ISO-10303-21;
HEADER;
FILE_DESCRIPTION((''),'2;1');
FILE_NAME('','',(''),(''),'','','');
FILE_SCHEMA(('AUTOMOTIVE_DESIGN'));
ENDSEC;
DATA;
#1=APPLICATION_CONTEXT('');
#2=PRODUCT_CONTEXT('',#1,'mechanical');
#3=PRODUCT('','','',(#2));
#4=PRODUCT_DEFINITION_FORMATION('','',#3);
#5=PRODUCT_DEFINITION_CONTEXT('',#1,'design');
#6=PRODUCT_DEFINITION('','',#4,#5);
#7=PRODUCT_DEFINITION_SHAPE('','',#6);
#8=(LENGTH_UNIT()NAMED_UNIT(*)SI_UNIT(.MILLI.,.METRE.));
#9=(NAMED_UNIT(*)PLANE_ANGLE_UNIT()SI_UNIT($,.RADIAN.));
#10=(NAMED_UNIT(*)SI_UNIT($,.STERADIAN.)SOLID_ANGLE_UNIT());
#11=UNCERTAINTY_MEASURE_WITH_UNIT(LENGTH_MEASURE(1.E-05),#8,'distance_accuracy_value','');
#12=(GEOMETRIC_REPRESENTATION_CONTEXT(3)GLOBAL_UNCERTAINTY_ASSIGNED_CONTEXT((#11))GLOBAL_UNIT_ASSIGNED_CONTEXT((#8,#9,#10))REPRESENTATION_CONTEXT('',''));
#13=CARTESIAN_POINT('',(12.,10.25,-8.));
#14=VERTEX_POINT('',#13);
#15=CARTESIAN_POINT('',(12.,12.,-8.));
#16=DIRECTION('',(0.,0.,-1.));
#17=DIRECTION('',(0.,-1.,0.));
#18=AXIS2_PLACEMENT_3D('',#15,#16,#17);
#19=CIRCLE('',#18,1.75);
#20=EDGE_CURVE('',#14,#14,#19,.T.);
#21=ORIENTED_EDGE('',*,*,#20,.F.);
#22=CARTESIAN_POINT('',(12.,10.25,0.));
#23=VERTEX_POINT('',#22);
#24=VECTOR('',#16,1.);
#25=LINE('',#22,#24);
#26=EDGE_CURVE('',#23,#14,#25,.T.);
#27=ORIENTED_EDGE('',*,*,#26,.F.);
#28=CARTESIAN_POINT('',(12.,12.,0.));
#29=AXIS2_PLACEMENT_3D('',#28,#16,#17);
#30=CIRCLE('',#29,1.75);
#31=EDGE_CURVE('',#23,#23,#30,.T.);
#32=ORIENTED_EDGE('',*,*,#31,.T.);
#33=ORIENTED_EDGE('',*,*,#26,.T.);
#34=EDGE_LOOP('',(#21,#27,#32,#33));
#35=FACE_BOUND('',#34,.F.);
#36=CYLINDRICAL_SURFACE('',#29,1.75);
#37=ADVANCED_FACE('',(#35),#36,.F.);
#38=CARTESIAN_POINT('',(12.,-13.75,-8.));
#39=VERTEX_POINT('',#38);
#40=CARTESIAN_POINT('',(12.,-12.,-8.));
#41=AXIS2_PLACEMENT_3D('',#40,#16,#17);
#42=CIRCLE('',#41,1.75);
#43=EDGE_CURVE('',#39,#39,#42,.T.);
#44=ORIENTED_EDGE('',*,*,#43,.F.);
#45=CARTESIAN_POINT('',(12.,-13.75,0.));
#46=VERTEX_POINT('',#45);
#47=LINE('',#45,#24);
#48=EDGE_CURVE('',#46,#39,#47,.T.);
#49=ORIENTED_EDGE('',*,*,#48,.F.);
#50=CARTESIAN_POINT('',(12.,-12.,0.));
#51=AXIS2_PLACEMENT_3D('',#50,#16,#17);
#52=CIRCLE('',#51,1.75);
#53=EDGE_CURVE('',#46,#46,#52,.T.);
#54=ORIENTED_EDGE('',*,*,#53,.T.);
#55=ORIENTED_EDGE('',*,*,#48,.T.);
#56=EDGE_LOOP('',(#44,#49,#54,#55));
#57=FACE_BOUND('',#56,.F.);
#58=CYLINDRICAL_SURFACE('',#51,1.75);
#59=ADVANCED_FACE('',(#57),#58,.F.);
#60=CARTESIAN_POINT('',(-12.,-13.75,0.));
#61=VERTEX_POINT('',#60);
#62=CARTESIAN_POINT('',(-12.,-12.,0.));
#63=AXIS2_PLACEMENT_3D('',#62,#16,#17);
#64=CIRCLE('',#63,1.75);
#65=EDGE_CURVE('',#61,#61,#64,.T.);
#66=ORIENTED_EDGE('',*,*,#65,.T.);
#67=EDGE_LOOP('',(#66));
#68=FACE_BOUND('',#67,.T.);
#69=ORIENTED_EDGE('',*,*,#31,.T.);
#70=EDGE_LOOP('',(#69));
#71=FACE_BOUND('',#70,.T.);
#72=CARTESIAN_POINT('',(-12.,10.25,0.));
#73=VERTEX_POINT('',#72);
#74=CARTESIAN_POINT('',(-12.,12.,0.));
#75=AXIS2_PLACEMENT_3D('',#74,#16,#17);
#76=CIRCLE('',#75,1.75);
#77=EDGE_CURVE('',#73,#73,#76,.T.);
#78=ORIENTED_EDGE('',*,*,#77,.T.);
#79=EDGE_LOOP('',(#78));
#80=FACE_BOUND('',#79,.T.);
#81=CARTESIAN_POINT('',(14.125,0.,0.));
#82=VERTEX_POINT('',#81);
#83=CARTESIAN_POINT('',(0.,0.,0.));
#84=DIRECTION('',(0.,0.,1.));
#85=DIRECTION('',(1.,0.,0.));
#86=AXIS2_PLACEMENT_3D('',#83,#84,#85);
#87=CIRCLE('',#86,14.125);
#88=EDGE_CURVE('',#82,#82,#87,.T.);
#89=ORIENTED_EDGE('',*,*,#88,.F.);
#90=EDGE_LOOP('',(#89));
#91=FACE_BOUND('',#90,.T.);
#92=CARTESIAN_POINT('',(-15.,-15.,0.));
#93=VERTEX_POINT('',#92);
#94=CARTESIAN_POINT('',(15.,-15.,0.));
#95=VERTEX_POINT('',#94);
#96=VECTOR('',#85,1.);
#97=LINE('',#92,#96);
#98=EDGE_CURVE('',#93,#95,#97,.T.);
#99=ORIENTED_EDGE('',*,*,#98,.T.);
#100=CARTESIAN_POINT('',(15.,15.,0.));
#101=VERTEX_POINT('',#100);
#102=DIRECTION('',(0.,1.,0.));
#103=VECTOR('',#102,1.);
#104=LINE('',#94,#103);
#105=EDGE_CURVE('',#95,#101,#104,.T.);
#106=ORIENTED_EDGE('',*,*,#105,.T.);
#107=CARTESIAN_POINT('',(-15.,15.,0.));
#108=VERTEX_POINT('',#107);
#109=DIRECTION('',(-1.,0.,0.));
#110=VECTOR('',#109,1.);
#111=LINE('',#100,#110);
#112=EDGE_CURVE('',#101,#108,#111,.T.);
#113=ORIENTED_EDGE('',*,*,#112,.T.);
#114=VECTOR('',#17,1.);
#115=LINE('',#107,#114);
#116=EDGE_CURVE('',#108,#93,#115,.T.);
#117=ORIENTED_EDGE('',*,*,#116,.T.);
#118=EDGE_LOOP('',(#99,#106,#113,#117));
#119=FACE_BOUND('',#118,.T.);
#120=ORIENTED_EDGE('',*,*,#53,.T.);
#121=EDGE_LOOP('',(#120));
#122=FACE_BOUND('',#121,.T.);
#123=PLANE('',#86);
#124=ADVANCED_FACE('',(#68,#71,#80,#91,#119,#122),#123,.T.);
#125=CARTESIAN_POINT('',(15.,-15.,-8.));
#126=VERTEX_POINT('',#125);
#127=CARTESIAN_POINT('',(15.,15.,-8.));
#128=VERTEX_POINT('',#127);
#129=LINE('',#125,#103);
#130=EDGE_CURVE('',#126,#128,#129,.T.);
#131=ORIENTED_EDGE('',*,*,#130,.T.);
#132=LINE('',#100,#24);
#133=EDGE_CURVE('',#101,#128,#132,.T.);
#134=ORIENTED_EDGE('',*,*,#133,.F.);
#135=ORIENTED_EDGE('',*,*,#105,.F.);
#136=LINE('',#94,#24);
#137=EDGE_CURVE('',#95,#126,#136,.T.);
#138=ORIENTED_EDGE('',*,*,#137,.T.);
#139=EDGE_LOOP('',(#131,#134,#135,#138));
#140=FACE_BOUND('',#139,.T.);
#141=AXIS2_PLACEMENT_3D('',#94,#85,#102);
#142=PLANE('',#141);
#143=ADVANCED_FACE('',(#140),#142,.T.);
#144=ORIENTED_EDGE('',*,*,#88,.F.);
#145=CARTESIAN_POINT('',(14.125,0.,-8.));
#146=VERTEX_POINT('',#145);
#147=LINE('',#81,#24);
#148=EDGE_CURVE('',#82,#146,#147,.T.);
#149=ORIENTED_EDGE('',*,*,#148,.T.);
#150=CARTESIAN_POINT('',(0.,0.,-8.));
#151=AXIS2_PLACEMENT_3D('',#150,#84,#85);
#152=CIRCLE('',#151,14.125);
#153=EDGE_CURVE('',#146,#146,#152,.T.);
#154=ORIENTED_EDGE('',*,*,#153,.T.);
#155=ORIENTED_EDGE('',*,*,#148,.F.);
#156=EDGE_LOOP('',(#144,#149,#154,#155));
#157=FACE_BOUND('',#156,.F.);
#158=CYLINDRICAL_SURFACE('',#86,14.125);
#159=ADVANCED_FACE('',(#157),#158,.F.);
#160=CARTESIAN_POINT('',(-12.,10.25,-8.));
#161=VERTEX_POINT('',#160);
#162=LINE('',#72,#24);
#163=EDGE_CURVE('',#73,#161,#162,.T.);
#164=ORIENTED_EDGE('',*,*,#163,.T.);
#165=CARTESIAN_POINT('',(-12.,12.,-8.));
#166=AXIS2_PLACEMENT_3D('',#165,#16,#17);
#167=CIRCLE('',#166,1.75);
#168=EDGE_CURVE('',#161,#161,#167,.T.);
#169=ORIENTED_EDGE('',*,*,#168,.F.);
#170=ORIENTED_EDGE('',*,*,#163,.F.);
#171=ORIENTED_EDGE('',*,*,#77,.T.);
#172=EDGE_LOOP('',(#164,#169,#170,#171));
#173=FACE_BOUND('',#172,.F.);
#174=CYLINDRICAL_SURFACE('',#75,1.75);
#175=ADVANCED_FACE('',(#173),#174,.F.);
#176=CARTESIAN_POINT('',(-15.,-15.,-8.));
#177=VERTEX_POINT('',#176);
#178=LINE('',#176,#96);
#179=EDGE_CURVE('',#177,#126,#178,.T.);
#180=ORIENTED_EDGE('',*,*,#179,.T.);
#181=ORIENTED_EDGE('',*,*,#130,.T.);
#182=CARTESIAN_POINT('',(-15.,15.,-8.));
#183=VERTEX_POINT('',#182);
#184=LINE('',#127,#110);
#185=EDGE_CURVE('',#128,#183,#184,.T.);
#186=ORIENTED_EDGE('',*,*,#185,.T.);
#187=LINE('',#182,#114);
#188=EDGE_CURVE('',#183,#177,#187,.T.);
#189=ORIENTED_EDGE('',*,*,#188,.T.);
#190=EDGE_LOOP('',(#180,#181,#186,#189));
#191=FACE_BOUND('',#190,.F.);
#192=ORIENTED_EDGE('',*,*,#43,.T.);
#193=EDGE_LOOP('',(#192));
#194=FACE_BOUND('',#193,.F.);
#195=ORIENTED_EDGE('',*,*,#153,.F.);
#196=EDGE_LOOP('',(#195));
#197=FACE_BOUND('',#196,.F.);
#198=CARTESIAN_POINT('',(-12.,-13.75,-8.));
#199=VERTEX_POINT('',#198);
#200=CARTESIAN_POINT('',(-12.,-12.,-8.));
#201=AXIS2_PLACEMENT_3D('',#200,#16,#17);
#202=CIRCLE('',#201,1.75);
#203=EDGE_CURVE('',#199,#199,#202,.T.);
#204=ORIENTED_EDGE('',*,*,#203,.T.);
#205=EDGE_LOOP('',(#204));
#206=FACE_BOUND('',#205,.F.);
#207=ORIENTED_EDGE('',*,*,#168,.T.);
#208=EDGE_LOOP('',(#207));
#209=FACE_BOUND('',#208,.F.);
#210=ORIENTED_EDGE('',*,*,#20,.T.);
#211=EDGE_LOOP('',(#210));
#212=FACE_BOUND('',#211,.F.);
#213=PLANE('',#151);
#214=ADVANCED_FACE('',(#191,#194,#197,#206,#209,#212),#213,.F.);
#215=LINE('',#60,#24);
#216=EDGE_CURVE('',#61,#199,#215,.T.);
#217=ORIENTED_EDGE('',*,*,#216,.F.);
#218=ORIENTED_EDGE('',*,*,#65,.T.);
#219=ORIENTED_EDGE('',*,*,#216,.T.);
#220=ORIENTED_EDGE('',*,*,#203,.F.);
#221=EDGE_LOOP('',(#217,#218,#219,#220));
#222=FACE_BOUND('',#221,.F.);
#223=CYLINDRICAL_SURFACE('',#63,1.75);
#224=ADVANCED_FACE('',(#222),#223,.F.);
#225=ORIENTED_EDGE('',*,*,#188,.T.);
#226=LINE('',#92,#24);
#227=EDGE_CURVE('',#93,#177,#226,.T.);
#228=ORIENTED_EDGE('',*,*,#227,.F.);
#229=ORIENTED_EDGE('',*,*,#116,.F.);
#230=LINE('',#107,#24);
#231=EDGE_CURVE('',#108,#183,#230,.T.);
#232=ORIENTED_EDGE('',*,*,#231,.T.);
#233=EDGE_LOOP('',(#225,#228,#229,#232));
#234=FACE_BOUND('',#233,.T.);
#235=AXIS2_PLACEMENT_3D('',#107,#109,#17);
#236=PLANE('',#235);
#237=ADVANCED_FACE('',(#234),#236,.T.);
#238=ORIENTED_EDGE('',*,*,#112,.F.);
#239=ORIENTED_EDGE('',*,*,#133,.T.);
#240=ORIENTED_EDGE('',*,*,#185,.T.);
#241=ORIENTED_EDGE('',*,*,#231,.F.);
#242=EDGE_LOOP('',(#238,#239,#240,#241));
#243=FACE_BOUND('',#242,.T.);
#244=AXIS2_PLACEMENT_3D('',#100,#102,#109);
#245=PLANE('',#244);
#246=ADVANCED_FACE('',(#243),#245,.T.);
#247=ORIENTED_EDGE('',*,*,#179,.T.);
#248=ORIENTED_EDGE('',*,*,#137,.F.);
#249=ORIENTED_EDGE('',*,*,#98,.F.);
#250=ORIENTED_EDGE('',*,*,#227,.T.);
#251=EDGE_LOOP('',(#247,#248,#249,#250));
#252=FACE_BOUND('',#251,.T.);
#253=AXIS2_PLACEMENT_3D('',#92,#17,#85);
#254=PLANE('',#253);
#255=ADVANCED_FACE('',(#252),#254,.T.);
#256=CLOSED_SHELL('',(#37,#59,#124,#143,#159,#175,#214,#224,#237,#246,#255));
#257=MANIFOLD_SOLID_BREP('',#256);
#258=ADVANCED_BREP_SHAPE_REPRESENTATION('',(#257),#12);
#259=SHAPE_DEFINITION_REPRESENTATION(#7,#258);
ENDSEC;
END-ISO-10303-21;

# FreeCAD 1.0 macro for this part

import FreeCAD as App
import Part
import Sketcher

V = App.Vector
Q = App.Units.Quantity


def add_polygon(sketch, points):
    """Adds a closed chain of lines whose ends are joined by coincident constraints."""
    first, n = sketch.GeometryCount, len(points)
    for a, b in zip(points, points[1:] + points[:1]):
        sketch.addGeometry(Part.LineSegment(App.Vector(*a, 0), App.Vector(*b, 0)), False)
    for i in range(n):
        sketch.addConstraint(Sketcher.Constraint("Coincident", first + i, 2, first + (i + 1) % n, 1))

doc = App.newDocument("Part")
body = doc.addObject("PartDesign::Body", "Body")

# Sketch on XY plane
sketch1 = body.newObject("Sketcher::SketchObject", "Sketch")
sketch1.AttachmentSupport = (doc.getObject("XY_Plane"), [""])
sketch1.MapMode = "FlatFace"
add_polygon(sketch1, [(-15, 15), (-15, -15), (15, -15), (15, 15)])  # lines 0-3
sketch1.addGeometry(Part.Circle(V(0, 0, 0), V(0, 0, 1), 14), False)  # 4
sketch1.addConstraint([
    Sketcher.Constraint("Vertical", 0),
    Sketcher.Constraint("Horizontal", 1),
    Sketcher.Constraint("Vertical", 2),
    Sketcher.Constraint("Horizontal", 3),
    Sketcher.Constraint("Coincident", 4, 3, -1, 1),
    Sketcher.Constraint("Symmetric", 0, 2, 2, 2, -1, 1),
    Sketcher.Constraint("Equal", 3, 0),
    Sketcher.Constraint("Diameter", 4, Q("28.25 mm")),
    Sketcher.Constraint("DistanceX", 1, 1, 1, 2, Q("30 mm")),
])
pad1 = body.newObject("PartDesign::Pad", "Pad")
pad1.Profile = sketch1
pad1.Length = 8
pad1.Reversed = True

# Sketch on XY plane
sketch2 = body.newObject("Sketcher::SketchObject", "Sketch001")
sketch2.AttachmentSupport = (doc.getObject("XY_Plane"), [""])
sketch2.MapMode = "FlatFace"
sketch2.addGeometry([
    Part.Circle(V(-12, 12, 0), V(0, 0, 1), 1.8),
    Part.Circle(V(12, 12, 0), V(0, 0, 1), 1.8),
    Part.Circle(V(12, -12, 0), V(0, 0, 1), 1.8),
    Part.Circle(V(-12, -12, 0), V(0, 0, 1), 1.8),
], False)
sketch2.addConstraint([
    Sketcher.Constraint("Equal", 0, 1),
    Sketcher.Constraint("Equal", 1, 2),
    Sketcher.Constraint("Equal", 2, 3),
    Sketcher.Constraint("Symmetric", 0, 3, 2, 3, -1, 1),
    Sketcher.Constraint("Symmetric", 1, 3, 3, 3, -1, 1),
    Sketcher.Constraint("Symmetric", 0, 3, 1, 3, -2),
    Sketcher.Constraint("Diameter", 0, Q("3.5 mm")),
    Sketcher.Constraint("DistanceX", 0, 3, -1, 1, Q("12 mm")),
    Sketcher.Constraint("DistanceY", -1, 1, 0, 3, Q("12 mm")),
])
doc.recompute()
hole = body.newObject("PartDesign::Hole", "Hole")
hole.Profile = sketch2
hole.ThreadType = "None"
hole.Diameter = 3.5
hole.DepthType = "ThroughAll"

doc.recompute()
